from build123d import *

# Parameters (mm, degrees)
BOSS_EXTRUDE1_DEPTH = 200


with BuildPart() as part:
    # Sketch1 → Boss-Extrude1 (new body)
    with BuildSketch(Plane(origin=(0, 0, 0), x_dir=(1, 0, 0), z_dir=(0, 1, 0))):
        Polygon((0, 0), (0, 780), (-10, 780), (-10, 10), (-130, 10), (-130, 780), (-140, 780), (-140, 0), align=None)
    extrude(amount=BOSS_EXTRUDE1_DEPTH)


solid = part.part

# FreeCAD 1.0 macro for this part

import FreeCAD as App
import Part
import Sketcher
from FreeCAD import Vector

doc = App.newDocument("Part")
body = doc.addObject("PartDesign::Body", "Body")

sketch1 = body.newObject("Sketcher::SketchObject", "Sketch")
sketch1.AttachmentSupport = (doc.getObject("XZ_Plane"), [""])
sketch1.MapMode = "FlatFace"
sketch1.addGeometry([
    Part.LineSegment(Vector(0, 0, 0), Vector(0, -780, 0)),
    Part.LineSegment(Vector(0, -780, 0), Vector(-10, -780, 0)),
    Part.LineSegment(Vector(-10, -780, 0), Vector(-10, -10, 0)),
    Part.LineSegment(Vector(-10, -10, 0), Vector(-130, -10, 0)),
    Part.LineSegment(Vector(-130, -10, 0), Vector(-130, -780, 0)),
    Part.LineSegment(Vector(-130, -780, 0), Vector(-140, -780, 0)),
    Part.LineSegment(Vector(-140, -780, 0), Vector(-140, 0, 0)),
    Part.LineSegment(Vector(-140, 0, 0), Vector(0, 0, 0)),
], False)
sketch1.addConstraint([
    Sketcher.Constraint("Coincident", 0, 2, 1, 1),
    Sketcher.Constraint("Coincident", 1, 2, 2, 1),
    Sketcher.Constraint("Coincident", 2, 2, 3, 1),
    Sketcher.Constraint("Coincident", 3, 2, 4, 1),
    Sketcher.Constraint("Coincident", 4, 2, 5, 1),
    Sketcher.Constraint("Coincident", 5, 2, 6, 1),
    Sketcher.Constraint("Coincident", 6, 2, 7, 1),
    Sketcher.Constraint("Coincident", 7, 2, 0, 1),
    Sketcher.Constraint("Vertical", 0),
    Sketcher.Constraint("Horizontal", 1),
    Sketcher.Constraint("Vertical", 2),
    Sketcher.Constraint("Horizontal", 3),
    Sketcher.Constraint("Vertical", 4),
    Sketcher.Constraint("Horizontal", 5),
    Sketcher.Constraint("Vertical", 6),
    Sketcher.Constraint("Horizontal", 7),
    Sketcher.Constraint("Coincident", 7, 2, -1, 1),
    Sketcher.Constraint("Horizontal", 1, 2, 4, 2),
    Sketcher.Constraint("Equal", 1, 5),
    Sketcher.Constraint("DistanceX", 1, 2, 1, 1, 10.0),
    Sketcher.Constraint("DistanceX", 3, 2, 3, 1, 120.0),
    Sketcher.Constraint("DistanceY", 0, 2, 0, 1, 780.0),
    Sketcher.Constraint("DistanceY", 2, 1, 2, 2, 770.0),
])
pad1 = body.newObject("PartDesign::Pad", "Pad")
pad1.Profile = sketch1
pad1.Length = 200
pad1.Reversed = True

doc.recompute()
